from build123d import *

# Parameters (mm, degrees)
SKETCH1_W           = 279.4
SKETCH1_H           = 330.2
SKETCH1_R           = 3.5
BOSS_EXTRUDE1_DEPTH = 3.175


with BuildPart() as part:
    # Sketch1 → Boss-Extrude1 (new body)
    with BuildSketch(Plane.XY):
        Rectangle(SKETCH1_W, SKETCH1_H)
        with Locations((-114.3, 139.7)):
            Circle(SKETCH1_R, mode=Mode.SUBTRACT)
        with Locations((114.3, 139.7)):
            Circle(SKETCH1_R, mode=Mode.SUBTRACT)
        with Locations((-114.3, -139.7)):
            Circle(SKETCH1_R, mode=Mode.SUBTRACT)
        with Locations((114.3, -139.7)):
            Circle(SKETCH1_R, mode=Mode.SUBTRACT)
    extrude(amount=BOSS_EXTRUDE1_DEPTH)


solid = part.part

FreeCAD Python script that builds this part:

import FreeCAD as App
import Part
import Sketcher

V = App.Vector
Q = App.Units.Quantity


def add_polygon(sketch, points):
    """Adds a closed chain of lines whose ends are joined by coincident constraints."""
    first, n = sketch.GeometryCount, len(points)
    for a, b in zip(points, points[1:] + points[:1]):
        sketch.addGeometry(Part.LineSegment(App.Vector(*a, 0), App.Vector(*b, 0)), False)
    for i in range(n):
        sketch.addConstraint(Sketcher.Constraint("Coincident", first + i, 2, first + (i + 1) % n, 1))

doc = App.newDocument("Part")
body = doc.addObject("PartDesign::Body", "Body")

sketch1 = doc.addObject("Sketcher::SketchObject", "Sketch")
body.addObject(sketch1)
sketch1.AttachmentSupport = (doc.XY_Plane, [""])
sketch1.MapMode = "FlatFace"
add_polygon(sketch1, [(-139.7, 165.1), (-139.7, -165.1), (139.7, -165.1), (139.7, 165.1)])
sketch1.addGeometry(Part.Circle(V(-114.3, -139.7, 0), V(0, 0, 1), 3.5), False)
sketch1.addGeometry(Part.Circle(V(114.3, -139.7, 0), V(0, 0, 1), 3.5), False)
sketch1.addGeometry(Part.Circle(V(-114.3, 139.7, 0), V(0, 0, 1), 3.5), False)
sketch1.addGeometry(Part.Circle(V(114.3, 139.7, 0), V(0, 0, 1), 3.5), False)
sketch1.addConstraint([
    Sketcher.Constraint("Vertical", 0),
    Sketcher.Constraint("Horizontal", 1),
    Sketcher.Constraint("Vertical", 2),
    Sketcher.Constraint("Horizontal", 3),
    Sketcher.Constraint("Equal", 4, 5),
    Sketcher.Constraint("Equal", 5, 6),
    Sketcher.Constraint("Equal", 6, 7),
    Sketcher.Constraint("Symmetric", 5, 3, 6, 3, -1, 1),
    Sketcher.Constraint("Symmetric", 4, 3, 7, 3, -1, 1),
    Sketcher.Constraint("Symmetric", 0, 2, 2, 2, -1, 1),
    Sketcher.Constraint("Symmetric", 4, 3, 5, 3, -2),
    Sketcher.Constraint("DistanceX", 1, 1, 1, 2, Q("11 in")),
    Sketcher.Constraint("DistanceY", 0, 2, 0, 1, Q("13 in")),
    Sketcher.Constraint("DistanceX", 4, 3, 5, 3, Q("9 in")),
    Sketcher.Constraint("DistanceY", 4, 3, 6, 3, Q("11 in")),
    Sketcher.Constraint("Diameter", 4, 7.0),
])
pad1 = doc.addObject("PartDesign::Pad", "Pad")
body.addObject(pad1)
pad1.Profile = sketch1
pad1.Length = Q("0.125 in")

doc.recompute()
